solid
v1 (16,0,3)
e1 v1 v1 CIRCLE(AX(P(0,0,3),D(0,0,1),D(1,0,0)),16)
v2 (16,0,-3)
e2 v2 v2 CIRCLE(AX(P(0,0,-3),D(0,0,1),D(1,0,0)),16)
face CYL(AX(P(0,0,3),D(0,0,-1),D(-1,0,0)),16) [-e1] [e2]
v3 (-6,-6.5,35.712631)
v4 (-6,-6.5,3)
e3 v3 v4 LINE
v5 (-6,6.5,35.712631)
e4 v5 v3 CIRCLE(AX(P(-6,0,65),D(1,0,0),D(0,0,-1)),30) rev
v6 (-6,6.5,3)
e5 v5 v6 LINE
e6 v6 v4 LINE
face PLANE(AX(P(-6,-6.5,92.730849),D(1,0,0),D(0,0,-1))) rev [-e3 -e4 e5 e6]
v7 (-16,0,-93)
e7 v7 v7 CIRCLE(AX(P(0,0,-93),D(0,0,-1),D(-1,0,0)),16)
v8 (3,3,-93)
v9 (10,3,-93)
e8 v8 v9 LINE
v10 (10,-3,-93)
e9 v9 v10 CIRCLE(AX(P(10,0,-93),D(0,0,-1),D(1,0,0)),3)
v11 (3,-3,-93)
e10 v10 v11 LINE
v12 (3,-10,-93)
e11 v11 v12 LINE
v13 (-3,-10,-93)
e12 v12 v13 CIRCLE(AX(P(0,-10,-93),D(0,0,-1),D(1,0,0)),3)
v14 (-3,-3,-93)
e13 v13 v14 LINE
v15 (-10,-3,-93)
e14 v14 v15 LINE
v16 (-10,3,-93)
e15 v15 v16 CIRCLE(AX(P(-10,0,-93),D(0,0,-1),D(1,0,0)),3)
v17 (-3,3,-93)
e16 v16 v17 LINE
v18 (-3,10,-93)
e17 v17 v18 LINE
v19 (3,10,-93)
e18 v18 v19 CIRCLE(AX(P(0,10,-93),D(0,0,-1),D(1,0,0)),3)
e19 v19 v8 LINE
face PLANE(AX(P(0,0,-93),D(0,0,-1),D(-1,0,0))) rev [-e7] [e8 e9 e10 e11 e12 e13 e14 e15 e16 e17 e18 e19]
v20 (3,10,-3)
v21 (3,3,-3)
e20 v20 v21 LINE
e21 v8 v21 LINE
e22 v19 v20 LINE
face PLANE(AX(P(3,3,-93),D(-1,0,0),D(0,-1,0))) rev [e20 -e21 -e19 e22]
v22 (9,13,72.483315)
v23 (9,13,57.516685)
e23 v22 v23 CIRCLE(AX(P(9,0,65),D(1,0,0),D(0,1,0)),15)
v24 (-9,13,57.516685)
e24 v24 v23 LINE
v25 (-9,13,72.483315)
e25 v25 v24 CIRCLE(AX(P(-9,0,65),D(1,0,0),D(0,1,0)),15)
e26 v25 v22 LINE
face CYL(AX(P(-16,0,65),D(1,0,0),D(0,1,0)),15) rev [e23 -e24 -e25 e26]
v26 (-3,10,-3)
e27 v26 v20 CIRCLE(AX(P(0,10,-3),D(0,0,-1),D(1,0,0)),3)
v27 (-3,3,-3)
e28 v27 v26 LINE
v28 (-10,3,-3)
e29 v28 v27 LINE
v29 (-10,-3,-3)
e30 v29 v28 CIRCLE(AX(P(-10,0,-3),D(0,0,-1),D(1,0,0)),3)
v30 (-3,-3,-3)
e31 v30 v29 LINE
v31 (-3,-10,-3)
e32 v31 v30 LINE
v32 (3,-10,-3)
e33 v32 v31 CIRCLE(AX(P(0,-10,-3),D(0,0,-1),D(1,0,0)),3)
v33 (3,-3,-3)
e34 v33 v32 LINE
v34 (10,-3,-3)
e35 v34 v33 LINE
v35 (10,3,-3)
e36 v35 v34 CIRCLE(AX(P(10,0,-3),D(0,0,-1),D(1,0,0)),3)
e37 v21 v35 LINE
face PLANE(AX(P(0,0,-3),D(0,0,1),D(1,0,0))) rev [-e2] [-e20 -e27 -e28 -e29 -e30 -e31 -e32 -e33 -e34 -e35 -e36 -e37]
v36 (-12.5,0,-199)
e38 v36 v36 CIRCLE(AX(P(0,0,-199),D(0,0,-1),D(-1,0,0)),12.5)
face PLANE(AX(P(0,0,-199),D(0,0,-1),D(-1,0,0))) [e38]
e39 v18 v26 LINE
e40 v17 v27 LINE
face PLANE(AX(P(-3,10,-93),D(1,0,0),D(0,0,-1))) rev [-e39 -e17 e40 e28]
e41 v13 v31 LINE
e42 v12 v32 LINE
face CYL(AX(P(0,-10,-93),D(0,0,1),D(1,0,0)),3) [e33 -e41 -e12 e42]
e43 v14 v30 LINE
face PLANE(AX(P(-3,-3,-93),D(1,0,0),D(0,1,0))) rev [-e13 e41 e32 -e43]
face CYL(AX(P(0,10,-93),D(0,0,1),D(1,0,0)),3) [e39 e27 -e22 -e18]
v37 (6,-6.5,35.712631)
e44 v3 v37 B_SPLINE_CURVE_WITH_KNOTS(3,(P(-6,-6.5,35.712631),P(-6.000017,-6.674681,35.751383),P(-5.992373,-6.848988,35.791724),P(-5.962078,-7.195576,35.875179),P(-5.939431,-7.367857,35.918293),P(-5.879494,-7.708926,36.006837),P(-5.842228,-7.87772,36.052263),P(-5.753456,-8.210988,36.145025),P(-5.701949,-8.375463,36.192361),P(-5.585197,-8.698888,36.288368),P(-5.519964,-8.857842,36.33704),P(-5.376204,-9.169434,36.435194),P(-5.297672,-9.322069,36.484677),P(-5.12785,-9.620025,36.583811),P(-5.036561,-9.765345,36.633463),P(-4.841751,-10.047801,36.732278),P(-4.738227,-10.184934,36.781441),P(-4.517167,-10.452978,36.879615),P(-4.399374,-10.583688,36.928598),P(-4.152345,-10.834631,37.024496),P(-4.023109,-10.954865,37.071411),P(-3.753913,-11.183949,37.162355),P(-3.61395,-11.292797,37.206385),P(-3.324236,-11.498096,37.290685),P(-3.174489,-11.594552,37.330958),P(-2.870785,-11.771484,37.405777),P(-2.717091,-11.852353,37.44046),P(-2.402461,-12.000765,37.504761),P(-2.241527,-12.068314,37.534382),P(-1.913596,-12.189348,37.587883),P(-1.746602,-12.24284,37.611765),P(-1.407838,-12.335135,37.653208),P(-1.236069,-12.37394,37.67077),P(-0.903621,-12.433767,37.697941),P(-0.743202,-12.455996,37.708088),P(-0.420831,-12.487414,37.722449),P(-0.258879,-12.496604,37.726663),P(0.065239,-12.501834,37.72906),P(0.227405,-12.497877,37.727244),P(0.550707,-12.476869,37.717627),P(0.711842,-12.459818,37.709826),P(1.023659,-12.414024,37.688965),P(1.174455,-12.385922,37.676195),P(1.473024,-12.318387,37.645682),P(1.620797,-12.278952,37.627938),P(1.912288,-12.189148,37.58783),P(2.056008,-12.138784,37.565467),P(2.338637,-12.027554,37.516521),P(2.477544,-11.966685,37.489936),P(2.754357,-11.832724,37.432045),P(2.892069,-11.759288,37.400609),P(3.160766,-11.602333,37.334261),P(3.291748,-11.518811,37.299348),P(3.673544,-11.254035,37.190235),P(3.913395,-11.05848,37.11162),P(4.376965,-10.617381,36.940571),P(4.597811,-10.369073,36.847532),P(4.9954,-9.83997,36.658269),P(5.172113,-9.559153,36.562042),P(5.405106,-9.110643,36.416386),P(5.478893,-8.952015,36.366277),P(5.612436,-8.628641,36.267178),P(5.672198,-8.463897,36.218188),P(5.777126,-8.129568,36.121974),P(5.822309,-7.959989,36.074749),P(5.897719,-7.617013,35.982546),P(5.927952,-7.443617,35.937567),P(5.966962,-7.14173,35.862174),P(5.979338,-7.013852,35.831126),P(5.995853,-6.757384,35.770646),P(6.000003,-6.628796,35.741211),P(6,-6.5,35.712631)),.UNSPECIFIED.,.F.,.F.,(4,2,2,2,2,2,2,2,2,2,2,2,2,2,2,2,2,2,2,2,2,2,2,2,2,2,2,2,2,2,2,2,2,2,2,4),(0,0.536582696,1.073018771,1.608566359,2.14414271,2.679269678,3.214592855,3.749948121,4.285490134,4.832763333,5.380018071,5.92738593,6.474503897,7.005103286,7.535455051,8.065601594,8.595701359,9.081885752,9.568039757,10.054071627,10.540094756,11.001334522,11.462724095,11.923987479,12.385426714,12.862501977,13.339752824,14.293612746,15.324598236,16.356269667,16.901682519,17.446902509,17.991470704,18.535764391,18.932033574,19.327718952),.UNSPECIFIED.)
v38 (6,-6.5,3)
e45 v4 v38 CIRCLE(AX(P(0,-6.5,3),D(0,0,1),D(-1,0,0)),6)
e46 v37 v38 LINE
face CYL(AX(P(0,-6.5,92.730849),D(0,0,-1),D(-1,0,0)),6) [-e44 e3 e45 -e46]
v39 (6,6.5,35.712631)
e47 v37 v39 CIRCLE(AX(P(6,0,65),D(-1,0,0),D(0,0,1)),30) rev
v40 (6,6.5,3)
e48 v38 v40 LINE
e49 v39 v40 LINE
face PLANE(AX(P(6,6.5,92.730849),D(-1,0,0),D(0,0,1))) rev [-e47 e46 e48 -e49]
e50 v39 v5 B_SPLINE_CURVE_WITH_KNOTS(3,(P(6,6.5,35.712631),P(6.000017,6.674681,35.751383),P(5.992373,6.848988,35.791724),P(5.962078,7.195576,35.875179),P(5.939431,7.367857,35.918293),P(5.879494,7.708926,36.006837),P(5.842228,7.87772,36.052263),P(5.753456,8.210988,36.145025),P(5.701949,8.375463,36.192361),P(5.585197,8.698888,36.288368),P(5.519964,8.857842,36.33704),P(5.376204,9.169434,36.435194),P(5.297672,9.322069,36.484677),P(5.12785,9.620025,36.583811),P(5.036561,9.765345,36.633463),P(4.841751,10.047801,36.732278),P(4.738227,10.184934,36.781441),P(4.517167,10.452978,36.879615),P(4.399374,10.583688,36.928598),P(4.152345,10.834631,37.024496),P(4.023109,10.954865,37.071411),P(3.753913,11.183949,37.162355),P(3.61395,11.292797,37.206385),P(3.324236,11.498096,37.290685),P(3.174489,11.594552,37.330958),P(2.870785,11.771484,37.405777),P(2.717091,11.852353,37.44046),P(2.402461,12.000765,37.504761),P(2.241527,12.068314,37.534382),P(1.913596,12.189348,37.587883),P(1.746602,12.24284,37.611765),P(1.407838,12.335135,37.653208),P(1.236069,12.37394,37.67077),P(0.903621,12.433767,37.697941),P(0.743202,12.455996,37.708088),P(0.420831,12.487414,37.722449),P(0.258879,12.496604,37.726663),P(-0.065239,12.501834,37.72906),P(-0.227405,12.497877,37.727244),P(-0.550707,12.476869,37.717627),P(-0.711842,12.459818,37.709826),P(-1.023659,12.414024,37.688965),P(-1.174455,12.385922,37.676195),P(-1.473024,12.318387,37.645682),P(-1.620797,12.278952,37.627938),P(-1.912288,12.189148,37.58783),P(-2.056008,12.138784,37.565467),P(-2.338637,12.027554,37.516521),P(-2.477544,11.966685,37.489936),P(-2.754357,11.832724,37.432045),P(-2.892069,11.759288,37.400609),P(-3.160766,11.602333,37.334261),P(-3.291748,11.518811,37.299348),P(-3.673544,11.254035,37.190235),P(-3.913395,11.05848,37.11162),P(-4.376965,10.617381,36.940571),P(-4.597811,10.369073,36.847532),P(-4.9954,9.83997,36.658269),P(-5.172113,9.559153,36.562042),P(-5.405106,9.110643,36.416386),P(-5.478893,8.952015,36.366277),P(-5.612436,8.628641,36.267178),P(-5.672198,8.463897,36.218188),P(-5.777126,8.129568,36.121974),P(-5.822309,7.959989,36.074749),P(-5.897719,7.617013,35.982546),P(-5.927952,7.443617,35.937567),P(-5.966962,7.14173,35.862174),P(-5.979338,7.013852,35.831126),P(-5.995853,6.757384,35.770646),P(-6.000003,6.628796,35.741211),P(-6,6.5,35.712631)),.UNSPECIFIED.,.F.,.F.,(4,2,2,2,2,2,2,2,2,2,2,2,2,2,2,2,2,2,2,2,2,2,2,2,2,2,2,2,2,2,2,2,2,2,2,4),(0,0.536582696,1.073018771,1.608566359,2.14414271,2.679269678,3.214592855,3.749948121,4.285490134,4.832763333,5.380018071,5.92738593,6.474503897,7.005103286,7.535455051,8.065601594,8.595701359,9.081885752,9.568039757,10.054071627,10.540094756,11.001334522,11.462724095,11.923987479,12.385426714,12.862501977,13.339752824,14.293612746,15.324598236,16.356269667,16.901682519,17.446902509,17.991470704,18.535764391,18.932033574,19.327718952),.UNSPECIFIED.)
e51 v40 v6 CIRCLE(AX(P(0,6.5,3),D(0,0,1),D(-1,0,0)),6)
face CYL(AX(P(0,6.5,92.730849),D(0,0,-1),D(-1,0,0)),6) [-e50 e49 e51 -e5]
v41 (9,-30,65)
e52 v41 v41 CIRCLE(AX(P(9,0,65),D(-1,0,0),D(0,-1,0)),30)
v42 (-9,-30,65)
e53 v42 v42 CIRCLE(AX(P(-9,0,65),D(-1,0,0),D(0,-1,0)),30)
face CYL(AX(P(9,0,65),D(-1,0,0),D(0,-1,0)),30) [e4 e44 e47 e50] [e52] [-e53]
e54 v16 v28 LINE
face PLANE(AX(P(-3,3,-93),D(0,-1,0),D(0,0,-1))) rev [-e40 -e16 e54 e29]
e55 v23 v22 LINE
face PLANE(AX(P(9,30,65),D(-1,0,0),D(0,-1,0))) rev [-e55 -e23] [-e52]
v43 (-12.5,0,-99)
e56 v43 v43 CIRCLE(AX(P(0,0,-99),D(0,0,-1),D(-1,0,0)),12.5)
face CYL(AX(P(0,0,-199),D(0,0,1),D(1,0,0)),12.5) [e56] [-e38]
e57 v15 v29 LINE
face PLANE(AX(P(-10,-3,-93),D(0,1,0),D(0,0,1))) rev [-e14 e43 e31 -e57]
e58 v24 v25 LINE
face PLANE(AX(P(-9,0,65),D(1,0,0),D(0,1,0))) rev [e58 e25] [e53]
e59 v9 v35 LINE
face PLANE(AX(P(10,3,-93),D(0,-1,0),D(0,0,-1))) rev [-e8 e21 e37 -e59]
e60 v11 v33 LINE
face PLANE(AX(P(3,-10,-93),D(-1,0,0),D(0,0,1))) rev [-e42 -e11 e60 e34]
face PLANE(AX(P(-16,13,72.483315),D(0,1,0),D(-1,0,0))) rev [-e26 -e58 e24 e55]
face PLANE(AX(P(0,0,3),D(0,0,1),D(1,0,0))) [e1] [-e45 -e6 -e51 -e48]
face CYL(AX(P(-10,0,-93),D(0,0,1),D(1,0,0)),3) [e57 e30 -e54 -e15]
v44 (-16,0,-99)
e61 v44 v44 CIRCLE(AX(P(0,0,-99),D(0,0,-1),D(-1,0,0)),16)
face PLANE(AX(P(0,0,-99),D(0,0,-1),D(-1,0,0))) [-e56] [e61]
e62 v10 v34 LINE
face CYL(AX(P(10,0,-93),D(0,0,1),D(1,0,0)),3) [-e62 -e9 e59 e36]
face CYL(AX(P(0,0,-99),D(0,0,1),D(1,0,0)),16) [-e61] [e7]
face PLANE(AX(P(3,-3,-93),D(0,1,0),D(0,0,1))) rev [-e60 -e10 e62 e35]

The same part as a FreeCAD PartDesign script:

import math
import FreeCAD as App
import Part
import Sketcher
from FreeCAD import Vector


def add_polygon(sketch, points):
    """Adds a closed chain of lines whose ends are joined by coincident constraints."""
    first, n = sketch.GeometryCount, len(points)
    for a, b in zip(points, points[1:] + points[:1]):
        sketch.addGeometry(Part.LineSegment(App.Vector(*a, 0), App.Vector(*b, 0)), False)
    for i in range(n):
        sketch.addConstraint(Sketcher.Constraint("Coincident", first + i, 2, first + (i + 1) % n, 1))

doc = App.newDocument("Part")
params = doc.addObject("Spreadsheet::Sheet", "Params")
for row, (alias, value) in enumerate([
    ("sketch1_diameter", "32 mm"),
    ("pad1_length", "6 mm"),
    ("sketch2_radius", "6 mm"),
    ("sketch2_height", "13 mm"),
    ("pad2_length", "62 mm"),
    ("sketch3_radius", "3 mm"),
    ("sketch3_width", "7 mm"),
    ("pad3_length", "90 mm"),
    ("sketch4_diameter", "32 mm"),
    ("pad4_length", "6 mm"),
    ("sketch5_width", "18 mm"),
    ("sketch5_height", "30 mm"),
    ("revolution_angle", "360 deg"),
    ("sketch6_radius", "15 mm"),
    ("sketch7_diameter", "25 mm"),
    ("pad5_length", "100 mm"),
], start=1):
    params.set(f"A{row}", alias)
    params.set(f"B{row}", "=" + value)
    params.setAlias(f"B{row}", alias)

body = doc.addObject("PartDesign::Body", "Body")

# Sketch on XY plane
sketch1 = body.newObject("Sketcher::SketchObject", "Sketch")
sketch1.AttachmentSupport = (doc.getObject("XY_Plane"), [""])
sketch1.MapMode = "FlatFace"
sketch1.addGeometry(Part.Circle(Vector(0, 0, 0), Vector(0, 0, 1), 16), False)
sketch1.addConstraint([
    Sketcher.Constraint("Coincident", 0, 3, -1, 1),
    Sketcher.Constraint("Diameter", 0, 32.0),
])
sketch1.setExpression("Constraints[1]", "Params.sketch1_diameter")
pad1 = body.newObject("PartDesign::Pad", "Pad")
pad1.Profile = sketch1
pad1.setExpression("Length", "Params.pad1_length")
pad1.Midplane = True

# Sketch on XY plane
sketch2 = body.newObject("Sketcher::SketchObject", "Sketch001")
sketch2.AttachmentSupport = (doc.getObject("XY_Plane"), [""])
sketch2.MapMode = "FlatFace"
sketch2.AttachmentOffset = App.Placement(Vector(0, 0, 3), App.Rotation())
sketch2.addGeometry([
    Part.LineSegment(Vector(-6, 6, 0), Vector(-6, -6, 0)),
    Part.ArcOfCircle(Part.Circle(Vector(0, -6, 0), Vector(0, 0, 1), 6), math.radians(180), math.radians(360)),
    Part.LineSegment(Vector(6, -6, 0), Vector(6, 6, 0)),
    Part.ArcOfCircle(Part.Circle(Vector(0, 6, 0), Vector(0, 0, 1), 6), math.radians(0), math.radians(180)),
], False)
sketch2.addConstraint([
    Sketcher.Constraint("Tangent", 0, 2, 1, 1),
    Sketcher.Constraint("Tangent", 1, 2, 2, 1),
    Sketcher.Constraint("Tangent", 2, 2, 3, 1),
    Sketcher.Constraint("Tangent", 3, 2, 0, 1),
    Sketcher.Constraint("Vertical", 0),
    Sketcher.Constraint("Vertical", 2),
    Sketcher.Constraint("Symmetric", 1, 3, 3, 3, -1, 1),
    Sketcher.Constraint("Radius", 1, 6.0),
    Sketcher.Constraint("DistanceY", 0, 2, 0, 1, 13.0),
])
sketch2.setExpression("Constraints[7]", "Params.sketch2_radius")
sketch2.setExpression("Constraints[8]", "Params.sketch2_height")
pad2 = body.newObject("PartDesign::Pad", "Pad001")
pad2.Profile = sketch2
pad2.setExpression("Length", "Params.pad2_length")

# Sketch on XY plane
sketch3 = body.newObject("Sketcher::SketchObject", "Sketch002")
sketch3.AttachmentSupport = (doc.getObject("XY_Plane"), [""])
sketch3.MapMode = "FlatFace"
sketch3.AttachmentOffset = App.Placement(Vector(0, 0, -3), App.Rotation())
sketch3.addGeometry([
    Part.LineSegment(Vector(3, 10, 0), Vector(3, 3, 0)),  # 0
    Part.LineSegment(Vector(3, 3, 0), Vector(10, 3, 0)),  # 1
    Part.ArcOfCircle(Part.Circle(Vector(10, 0, 0), Vector(0, 0, 1), 3), math.radians(-90), math.radians(90)),  # 2
    Part.LineSegment(Vector(10, -3, 0), Vector(3, -3, 0)),  # 3
    Part.LineSegment(Vector(3, -3, 0), Vector(3, -10, 0)),  # 4
    Part.ArcOfCircle(Part.Circle(Vector(0, -10, 0), Vector(0, 0, 1), 3), math.radians(180), math.radians(360)),  # 5
    Part.LineSegment(Vector(-3, -10, 0), Vector(-3, -3, 0)),  # 6
    Part.LineSegment(Vector(-3, -3, 0), Vector(-10, -3, 0)),  # 7
    Part.ArcOfCircle(Part.Circle(Vector(-10, 0, 0), Vector(0, 0, 1), 3), math.radians(90), math.radians(270)),  # 8
    Part.LineSegment(Vector(-10, 3, 0), Vector(-3, 3, 0)),  # 9
    Part.LineSegment(Vector(-3, 3, 0), Vector(-3, 10, 0)),  # 10
    Part.ArcOfCircle(Part.Circle(Vector(0, 10, 0), Vector(0, 0, 1), 3), math.radians(0), math.radians(180)),  # 11
], False)
sketch3.addConstraint([
    Sketcher.Constraint("Coincident", 0, 2, 1, 1),
    Sketcher.Constraint("Tangent", 1, 2, 2, 2),
    Sketcher.Constraint("Tangent", 2, 1, 3, 1),
    Sketcher.Constraint("Coincident", 3, 2, 4, 1),
    Sketcher.Constraint("Tangent", 4, 2, 5, 2),
    Sketcher.Constraint("Tangent", 5, 1, 6, 1),
    Sketcher.Constraint("Coincident", 6, 2, 7, 1),
    Sketcher.Constraint("Tangent", 7, 2, 8, 2),
    Sketcher.Constraint("Tangent", 8, 1, 9, 1),
    Sketcher.Constraint("Coincident", 9, 2, 10, 1),
    Sketcher.Constraint("Tangent", 10, 2, 11, 2),
    Sketcher.Constraint("Tangent", 11, 1, 0, 1),
    Sketcher.Constraint("Vertical", 0),
    Sketcher.Constraint("Horizontal", 1),
    Sketcher.Constraint("Horizontal", 3),
    Sketcher.Constraint("Vertical", 4),
    Sketcher.Constraint("Vertical", 6),
    Sketcher.Constraint("Horizontal", 7),
    Sketcher.Constraint("Horizontal", 9),
    Sketcher.Constraint("Vertical", 10),
    Sketcher.Constraint("Equal", 2, 5),
    Sketcher.Constraint("Equal", 5, 8),
    Sketcher.Constraint("Equal", 8, 11),
    Sketcher.Constraint("Symmetric", 2, 3, 8, 3, -1, 1),
    Sketcher.Constraint("Symmetric", 5, 3, 11, 3, -1, 1),
    Sketcher.Constraint("Symmetric", 3, 2, 6, 2, -2),
    Sketcher.Constraint("Equal", 9, 0),
    Sketcher.Constraint("Radius", 2, 3.0),
    Sketcher.Constraint("DistanceX", 1, 1, 1, 2, 7.0),
])
sketch3.setExpression("Constraints[27]", "Params.sketch3_radius")
sketch3.setExpression("Constraints[28]", "Params.sketch3_width")
pad3 = body.newObject("PartDesign::Pad", "Pad002")
pad3.Profile = sketch3
pad3.setExpression("Length", "Params.pad3_length")
pad3.Reversed = True

# Sketch on XY plane
sketch4 = body.newObject("Sketcher::SketchObject", "Sketch003")
sketch4.AttachmentSupport = (doc.getObject("XY_Plane"), [""])
sketch4.MapMode = "FlatFace"
sketch4.AttachmentOffset = App.Placement(Vector(0, 0, -93), App.Rotation())
sketch4.addGeometry(Part.Circle(Vector(0, 0, 0), Vector(0, 0, 1), 16), False)
sketch4.addConstraint([
    Sketcher.Constraint("Coincident", 0, 3, -1, 1),
    Sketcher.Constraint("Diameter", 0, 32.0),
])
sketch4.setExpression("Constraints[1]", "Params.sketch4_diameter")
pad4 = body.newObject("PartDesign::Pad", "Pad003")
pad4.Profile = sketch4
pad4.setExpression("Length", "Params.pad4_length")
pad4.Reversed = True

# Sketch on XY plane
sketch5 = body.newObject("Sketcher::SketchObject", "Sketch004")
sketch5.AttachmentSupport = (doc.getObject("XY_Plane"), [""])
sketch5.MapMode = "FlatFace"
sketch5.AttachmentOffset = App.Placement(Vector(0, 0, 65), App.Rotation())
add_polygon(sketch5, [(-9, 30), (-9, 0), (9, 0), (9, 30)])  # lines 0-3
sketch5.addConstraint([
    Sketcher.Constraint("Vertical", 0),
    Sketcher.Constraint("Horizontal", 1),
    Sketcher.Constraint("Vertical", 2),
    Sketcher.Constraint("Horizontal", 3),
    Sketcher.Constraint("Symmetric", 0, 2, 1, 2, -1, 1),
    Sketcher.Constraint("DistanceX", 1, 1, 1, 2, 18.0),
    Sketcher.Constraint("DistanceY", 0, 2, 0, 1, 30.0),
])
sketch5.setExpression("Constraints[9]", "Params.sketch5_width")
sketch5.setExpression("Constraints[10]", "Params.sketch5_height")
revolution = body.newObject("PartDesign::Revolution", "Revolution")
revolution.Profile = sketch5
revolution.ReferenceAxis = (sketch5, ["H_Axis"])
revolution.setExpression("Angle", "Params.revolution_angle")

# Sketch on YZ plane
sketch6 = body.newObject("Sketcher::SketchObject", "Sketch005")
sketch6.AttachmentSupport = (doc.getObject("YZ_Plane"), [""])
sketch6.MapMode = "FlatFace"
sketch6.AttachmentOffset = App.Placement(Vector(0, 0, 9), App.Rotation())
sketch6.addGeometry([
    Part.LineSegment(Vector(13, 58, 0), Vector(13, 72, 0)),
    Part.ArcOfCircle(Part.Circle(Vector(0, 65, 0), Vector(0, 0, 1), 15), math.radians(30), math.radians(330)),
], False)
sketch6.addConstraint([
    Sketcher.Constraint("Coincident", 0, 1, 1, 2),
    Sketcher.Constraint("Coincident", 1, 1, 0, 2),
    Sketcher.Constraint("Vertical", 0),
    Sketcher.Constraint("PointOnObject", 1, 3, -2),
    Sketcher.Constraint("Radius", 1, 15.0),
    Sketcher.Constraint("DistanceY", -1, 1, 1, 3, 65.0),
    Sketcher.Constraint("DistanceX", -1, 1, 0, 1, 13.0),
])
sketch6.setExpression("Constraints[4]", "Params.sketch6_radius")
pocket1 = body.newObject("PartDesign::Pocket", "Pocket")
pocket1.Profile = sketch6
pocket1.Type = "ThroughAll"

# Sketch on XY plane
sketch7 = body.newObject("Sketcher::SketchObject", "Sketch006")
sketch7.AttachmentSupport = (doc.getObject("XY_Plane"), [""])
sketch7.MapMode = "FlatFace"
sketch7.AttachmentOffset = App.Placement(Vector(0, 0, -99), App.Rotation())
sketch7.addGeometry(Part.Circle(Vector(0, 0, 0), Vector(0, 0, 1), 12), False)
sketch7.addConstraint([
    Sketcher.Constraint("Coincident", 0, 3, -1, 1),
    Sketcher.Constraint("Diameter", 0, 25.0),
])
sketch7.setExpression("Constraints[1]", "Params.sketch7_diameter")
pad5 = body.newObject("PartDesign::Pad", "Pad004")
pad5.Profile = sketch7
pad5.setExpression("Length", "Params.pad5_length")
pad5.Reversed = True

doc.recompute()
